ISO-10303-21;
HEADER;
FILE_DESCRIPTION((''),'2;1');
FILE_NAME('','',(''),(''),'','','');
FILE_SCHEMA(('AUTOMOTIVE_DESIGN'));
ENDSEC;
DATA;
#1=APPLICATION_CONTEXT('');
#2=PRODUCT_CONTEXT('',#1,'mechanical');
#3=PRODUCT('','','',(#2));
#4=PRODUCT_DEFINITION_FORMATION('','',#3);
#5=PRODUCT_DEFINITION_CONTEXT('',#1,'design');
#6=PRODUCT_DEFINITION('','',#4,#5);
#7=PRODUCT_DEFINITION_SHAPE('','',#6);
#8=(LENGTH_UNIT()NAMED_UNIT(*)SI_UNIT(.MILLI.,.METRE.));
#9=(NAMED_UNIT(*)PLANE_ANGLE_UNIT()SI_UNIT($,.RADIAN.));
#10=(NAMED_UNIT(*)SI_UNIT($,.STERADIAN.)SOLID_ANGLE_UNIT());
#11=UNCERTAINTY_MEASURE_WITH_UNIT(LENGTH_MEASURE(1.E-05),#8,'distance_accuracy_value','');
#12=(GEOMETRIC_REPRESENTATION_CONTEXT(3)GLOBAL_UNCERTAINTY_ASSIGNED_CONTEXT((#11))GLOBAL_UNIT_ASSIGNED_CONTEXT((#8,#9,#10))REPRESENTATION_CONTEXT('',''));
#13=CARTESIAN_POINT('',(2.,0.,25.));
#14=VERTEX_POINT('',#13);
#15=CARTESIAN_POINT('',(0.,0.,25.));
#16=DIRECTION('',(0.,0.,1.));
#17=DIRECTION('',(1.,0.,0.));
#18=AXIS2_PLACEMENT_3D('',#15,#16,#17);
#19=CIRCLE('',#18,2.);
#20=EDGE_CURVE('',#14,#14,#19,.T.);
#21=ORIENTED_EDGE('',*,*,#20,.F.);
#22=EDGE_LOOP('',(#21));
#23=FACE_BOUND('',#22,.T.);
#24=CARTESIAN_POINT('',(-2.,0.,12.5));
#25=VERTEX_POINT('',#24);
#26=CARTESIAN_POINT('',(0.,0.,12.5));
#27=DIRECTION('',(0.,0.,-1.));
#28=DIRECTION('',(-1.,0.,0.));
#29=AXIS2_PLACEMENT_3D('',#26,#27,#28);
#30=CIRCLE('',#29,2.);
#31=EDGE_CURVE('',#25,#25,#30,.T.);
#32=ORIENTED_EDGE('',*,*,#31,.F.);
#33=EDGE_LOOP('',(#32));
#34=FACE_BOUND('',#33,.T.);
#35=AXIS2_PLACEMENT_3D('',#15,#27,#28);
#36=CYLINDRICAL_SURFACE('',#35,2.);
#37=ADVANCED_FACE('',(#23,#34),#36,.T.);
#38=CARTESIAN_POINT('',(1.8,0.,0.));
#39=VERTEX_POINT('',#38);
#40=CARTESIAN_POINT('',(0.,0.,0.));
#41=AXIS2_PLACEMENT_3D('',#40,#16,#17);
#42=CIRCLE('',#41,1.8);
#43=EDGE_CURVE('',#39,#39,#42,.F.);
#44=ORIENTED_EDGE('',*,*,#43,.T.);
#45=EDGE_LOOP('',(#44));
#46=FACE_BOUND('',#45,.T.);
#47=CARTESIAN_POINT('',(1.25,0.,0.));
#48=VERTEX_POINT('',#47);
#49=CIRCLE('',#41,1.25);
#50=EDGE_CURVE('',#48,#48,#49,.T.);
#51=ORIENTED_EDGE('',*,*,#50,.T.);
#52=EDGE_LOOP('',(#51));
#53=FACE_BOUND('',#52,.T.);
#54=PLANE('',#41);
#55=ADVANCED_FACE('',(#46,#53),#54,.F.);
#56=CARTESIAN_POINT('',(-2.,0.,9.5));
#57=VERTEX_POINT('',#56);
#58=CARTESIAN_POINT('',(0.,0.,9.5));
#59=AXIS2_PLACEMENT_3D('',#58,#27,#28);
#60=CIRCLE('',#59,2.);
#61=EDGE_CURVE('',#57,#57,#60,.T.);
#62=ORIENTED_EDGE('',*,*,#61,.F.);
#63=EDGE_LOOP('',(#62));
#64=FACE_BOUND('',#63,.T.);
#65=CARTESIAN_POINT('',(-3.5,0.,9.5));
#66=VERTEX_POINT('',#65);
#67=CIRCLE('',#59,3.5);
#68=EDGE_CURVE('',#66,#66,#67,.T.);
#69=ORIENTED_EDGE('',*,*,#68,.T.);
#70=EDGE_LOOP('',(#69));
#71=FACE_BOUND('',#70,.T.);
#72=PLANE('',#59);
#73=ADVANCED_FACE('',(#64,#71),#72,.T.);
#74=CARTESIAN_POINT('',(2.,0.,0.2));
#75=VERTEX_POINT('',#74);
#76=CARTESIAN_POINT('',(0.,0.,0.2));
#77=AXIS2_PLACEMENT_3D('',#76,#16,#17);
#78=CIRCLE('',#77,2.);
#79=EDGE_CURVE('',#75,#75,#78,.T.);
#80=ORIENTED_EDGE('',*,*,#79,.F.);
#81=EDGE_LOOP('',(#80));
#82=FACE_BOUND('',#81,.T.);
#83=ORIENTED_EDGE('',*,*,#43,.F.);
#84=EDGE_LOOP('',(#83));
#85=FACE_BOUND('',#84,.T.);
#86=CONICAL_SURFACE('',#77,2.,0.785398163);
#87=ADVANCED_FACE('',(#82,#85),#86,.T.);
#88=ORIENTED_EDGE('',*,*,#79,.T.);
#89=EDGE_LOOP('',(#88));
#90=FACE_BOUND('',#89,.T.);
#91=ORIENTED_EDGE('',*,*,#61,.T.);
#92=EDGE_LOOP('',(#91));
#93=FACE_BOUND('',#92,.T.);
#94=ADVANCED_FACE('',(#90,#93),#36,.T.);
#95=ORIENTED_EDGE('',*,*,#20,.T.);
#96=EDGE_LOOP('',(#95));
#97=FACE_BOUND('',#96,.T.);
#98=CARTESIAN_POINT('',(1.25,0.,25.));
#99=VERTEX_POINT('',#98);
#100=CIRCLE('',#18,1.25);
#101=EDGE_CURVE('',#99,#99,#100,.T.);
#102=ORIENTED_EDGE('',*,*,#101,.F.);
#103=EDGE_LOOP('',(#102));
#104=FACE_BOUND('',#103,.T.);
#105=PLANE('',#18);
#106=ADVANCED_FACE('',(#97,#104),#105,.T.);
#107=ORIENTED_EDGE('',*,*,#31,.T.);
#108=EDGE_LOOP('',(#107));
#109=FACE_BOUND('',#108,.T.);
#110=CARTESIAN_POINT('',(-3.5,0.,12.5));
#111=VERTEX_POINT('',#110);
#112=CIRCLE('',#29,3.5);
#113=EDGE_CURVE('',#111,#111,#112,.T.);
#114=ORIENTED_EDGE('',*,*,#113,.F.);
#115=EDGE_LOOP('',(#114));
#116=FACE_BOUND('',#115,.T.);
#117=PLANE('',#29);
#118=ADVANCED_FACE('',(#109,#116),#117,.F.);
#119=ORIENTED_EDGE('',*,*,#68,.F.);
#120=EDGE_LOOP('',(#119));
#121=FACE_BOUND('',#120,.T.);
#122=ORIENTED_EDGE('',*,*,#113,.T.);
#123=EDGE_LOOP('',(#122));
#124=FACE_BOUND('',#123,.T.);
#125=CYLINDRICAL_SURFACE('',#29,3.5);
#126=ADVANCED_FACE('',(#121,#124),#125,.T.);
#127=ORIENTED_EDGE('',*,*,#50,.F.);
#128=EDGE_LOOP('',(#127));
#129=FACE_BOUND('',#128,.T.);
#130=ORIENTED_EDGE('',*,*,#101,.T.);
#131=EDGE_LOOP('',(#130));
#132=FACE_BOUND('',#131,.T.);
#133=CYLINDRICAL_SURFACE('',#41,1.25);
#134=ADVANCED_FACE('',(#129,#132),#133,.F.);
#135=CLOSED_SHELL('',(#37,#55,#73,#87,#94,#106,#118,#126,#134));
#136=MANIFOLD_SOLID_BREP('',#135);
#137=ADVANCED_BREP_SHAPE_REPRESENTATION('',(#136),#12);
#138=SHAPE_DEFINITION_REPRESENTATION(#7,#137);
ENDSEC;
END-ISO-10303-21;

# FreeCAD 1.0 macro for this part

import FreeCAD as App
import Part
import Sketcher
Q = App.Units.Quantity


def edges_at(feature, points):
    """Names of the edges that pass closest to the given points."""
    edges = feature.Shape.Edges
    near = lambda p: min(range(len(edges)), key=lambda i: edges[i].distToShape(Part.Vertex(*p))[0])
    return sorted({f"Edge{near(p) + 1}" for p in points})

doc = App.newDocument("Part")
body = doc.addObject("PartDesign::Body", "Body")

sketch1 = doc.addObject("Sketcher::SketchObject", "Sketch")
body.addObject(sketch1)
sketch1.AttachmentSupport = (doc.XY_Plane, [""])
sketch1.MapMode = "FlatFace"
sketch1.addGeometry(Part.Circle(App.Vector(0, 0, 0), App.Vector(0, 0, 1), 2), False)
sketch1.addConstraint(Sketcher.Constraint("Coincident", 0, 3, -1, 1))
sketch1.addConstraint(Sketcher.Constraint("Diameter", 0, Q("4 mm")))
pad1 = doc.addObject("PartDesign::Pad", "Pad")
body.addObject(pad1)
pad1.Profile = sketch1
pad1.Length = 25

sketch2 = doc.addObject("Sketcher::SketchObject", "Sketch001")
body.addObject(sketch2)
sketch2.AttachmentSupport = (doc.XY_Plane, [""])
sketch2.MapMode = "FlatFace"
sketch2.AttachmentOffset = App.Placement(App.Vector(0, 0, 25), App.Rotation())
sketch2.addGeometry(Part.Circle(App.Vector(0, 0, 0), App.Vector(0, 0, 1), 1.2), False)
sketch2.addConstraint(Sketcher.Constraint("Coincident", 0, 3, -1, 1))
sketch2.addConstraint(Sketcher.Constraint("Diameter", 0, Q("2.5 mm")))
pocket1 = doc.addObject("PartDesign::Pocket", "Pocket")
body.addObject(pocket1)
pocket1.Profile = sketch2
pocket1.Type = "ThroughAll"

sketch3 = doc.addObject("Sketcher::SketchObject", "Sketch002")
body.addObject(sketch3)
sketch3.AttachmentSupport = (doc.XY_Plane, [""])
sketch3.MapMode = "FlatFace"
sketch3.AttachmentOffset = App.Placement(App.Vector(0, 0, 9.5), App.Rotation())
sketch3.addGeometry(Part.Circle(App.Vector(0, 0, 0), App.Vector(0, 0, 1), 3.5), False)
sketch3.addGeometry(Part.Circle(App.Vector(0, 0, 0), App.Vector(0, 0, 1), 2), False)
sketch3.addConstraint(Sketcher.Constraint("Coincident", 0, 3, -1, 1))
sketch3.addConstraint(Sketcher.Constraint("Coincident", 1, 3, -1, 1))
sketch3.addConstraint(Sketcher.Constraint("Diameter", 0, Q("7 mm")))
sketch3.addConstraint(Sketcher.Constraint("Diameter", 1, Q("4 mm")))
pad2 = doc.addObject("PartDesign::Pad", "Pad001")
body.addObject(pad2)
pad2.Profile = sketch3
pad2.Length = 3
doc.recompute()

chamfer = doc.addObject("PartDesign::Chamfer", "Chamfer")
body.addObject(chamfer)
chamfer.Base = (pad2, edges_at(pad2, [(-2, 0, 0)]))
chamfer.Size = 0.2

doc.recompute()
